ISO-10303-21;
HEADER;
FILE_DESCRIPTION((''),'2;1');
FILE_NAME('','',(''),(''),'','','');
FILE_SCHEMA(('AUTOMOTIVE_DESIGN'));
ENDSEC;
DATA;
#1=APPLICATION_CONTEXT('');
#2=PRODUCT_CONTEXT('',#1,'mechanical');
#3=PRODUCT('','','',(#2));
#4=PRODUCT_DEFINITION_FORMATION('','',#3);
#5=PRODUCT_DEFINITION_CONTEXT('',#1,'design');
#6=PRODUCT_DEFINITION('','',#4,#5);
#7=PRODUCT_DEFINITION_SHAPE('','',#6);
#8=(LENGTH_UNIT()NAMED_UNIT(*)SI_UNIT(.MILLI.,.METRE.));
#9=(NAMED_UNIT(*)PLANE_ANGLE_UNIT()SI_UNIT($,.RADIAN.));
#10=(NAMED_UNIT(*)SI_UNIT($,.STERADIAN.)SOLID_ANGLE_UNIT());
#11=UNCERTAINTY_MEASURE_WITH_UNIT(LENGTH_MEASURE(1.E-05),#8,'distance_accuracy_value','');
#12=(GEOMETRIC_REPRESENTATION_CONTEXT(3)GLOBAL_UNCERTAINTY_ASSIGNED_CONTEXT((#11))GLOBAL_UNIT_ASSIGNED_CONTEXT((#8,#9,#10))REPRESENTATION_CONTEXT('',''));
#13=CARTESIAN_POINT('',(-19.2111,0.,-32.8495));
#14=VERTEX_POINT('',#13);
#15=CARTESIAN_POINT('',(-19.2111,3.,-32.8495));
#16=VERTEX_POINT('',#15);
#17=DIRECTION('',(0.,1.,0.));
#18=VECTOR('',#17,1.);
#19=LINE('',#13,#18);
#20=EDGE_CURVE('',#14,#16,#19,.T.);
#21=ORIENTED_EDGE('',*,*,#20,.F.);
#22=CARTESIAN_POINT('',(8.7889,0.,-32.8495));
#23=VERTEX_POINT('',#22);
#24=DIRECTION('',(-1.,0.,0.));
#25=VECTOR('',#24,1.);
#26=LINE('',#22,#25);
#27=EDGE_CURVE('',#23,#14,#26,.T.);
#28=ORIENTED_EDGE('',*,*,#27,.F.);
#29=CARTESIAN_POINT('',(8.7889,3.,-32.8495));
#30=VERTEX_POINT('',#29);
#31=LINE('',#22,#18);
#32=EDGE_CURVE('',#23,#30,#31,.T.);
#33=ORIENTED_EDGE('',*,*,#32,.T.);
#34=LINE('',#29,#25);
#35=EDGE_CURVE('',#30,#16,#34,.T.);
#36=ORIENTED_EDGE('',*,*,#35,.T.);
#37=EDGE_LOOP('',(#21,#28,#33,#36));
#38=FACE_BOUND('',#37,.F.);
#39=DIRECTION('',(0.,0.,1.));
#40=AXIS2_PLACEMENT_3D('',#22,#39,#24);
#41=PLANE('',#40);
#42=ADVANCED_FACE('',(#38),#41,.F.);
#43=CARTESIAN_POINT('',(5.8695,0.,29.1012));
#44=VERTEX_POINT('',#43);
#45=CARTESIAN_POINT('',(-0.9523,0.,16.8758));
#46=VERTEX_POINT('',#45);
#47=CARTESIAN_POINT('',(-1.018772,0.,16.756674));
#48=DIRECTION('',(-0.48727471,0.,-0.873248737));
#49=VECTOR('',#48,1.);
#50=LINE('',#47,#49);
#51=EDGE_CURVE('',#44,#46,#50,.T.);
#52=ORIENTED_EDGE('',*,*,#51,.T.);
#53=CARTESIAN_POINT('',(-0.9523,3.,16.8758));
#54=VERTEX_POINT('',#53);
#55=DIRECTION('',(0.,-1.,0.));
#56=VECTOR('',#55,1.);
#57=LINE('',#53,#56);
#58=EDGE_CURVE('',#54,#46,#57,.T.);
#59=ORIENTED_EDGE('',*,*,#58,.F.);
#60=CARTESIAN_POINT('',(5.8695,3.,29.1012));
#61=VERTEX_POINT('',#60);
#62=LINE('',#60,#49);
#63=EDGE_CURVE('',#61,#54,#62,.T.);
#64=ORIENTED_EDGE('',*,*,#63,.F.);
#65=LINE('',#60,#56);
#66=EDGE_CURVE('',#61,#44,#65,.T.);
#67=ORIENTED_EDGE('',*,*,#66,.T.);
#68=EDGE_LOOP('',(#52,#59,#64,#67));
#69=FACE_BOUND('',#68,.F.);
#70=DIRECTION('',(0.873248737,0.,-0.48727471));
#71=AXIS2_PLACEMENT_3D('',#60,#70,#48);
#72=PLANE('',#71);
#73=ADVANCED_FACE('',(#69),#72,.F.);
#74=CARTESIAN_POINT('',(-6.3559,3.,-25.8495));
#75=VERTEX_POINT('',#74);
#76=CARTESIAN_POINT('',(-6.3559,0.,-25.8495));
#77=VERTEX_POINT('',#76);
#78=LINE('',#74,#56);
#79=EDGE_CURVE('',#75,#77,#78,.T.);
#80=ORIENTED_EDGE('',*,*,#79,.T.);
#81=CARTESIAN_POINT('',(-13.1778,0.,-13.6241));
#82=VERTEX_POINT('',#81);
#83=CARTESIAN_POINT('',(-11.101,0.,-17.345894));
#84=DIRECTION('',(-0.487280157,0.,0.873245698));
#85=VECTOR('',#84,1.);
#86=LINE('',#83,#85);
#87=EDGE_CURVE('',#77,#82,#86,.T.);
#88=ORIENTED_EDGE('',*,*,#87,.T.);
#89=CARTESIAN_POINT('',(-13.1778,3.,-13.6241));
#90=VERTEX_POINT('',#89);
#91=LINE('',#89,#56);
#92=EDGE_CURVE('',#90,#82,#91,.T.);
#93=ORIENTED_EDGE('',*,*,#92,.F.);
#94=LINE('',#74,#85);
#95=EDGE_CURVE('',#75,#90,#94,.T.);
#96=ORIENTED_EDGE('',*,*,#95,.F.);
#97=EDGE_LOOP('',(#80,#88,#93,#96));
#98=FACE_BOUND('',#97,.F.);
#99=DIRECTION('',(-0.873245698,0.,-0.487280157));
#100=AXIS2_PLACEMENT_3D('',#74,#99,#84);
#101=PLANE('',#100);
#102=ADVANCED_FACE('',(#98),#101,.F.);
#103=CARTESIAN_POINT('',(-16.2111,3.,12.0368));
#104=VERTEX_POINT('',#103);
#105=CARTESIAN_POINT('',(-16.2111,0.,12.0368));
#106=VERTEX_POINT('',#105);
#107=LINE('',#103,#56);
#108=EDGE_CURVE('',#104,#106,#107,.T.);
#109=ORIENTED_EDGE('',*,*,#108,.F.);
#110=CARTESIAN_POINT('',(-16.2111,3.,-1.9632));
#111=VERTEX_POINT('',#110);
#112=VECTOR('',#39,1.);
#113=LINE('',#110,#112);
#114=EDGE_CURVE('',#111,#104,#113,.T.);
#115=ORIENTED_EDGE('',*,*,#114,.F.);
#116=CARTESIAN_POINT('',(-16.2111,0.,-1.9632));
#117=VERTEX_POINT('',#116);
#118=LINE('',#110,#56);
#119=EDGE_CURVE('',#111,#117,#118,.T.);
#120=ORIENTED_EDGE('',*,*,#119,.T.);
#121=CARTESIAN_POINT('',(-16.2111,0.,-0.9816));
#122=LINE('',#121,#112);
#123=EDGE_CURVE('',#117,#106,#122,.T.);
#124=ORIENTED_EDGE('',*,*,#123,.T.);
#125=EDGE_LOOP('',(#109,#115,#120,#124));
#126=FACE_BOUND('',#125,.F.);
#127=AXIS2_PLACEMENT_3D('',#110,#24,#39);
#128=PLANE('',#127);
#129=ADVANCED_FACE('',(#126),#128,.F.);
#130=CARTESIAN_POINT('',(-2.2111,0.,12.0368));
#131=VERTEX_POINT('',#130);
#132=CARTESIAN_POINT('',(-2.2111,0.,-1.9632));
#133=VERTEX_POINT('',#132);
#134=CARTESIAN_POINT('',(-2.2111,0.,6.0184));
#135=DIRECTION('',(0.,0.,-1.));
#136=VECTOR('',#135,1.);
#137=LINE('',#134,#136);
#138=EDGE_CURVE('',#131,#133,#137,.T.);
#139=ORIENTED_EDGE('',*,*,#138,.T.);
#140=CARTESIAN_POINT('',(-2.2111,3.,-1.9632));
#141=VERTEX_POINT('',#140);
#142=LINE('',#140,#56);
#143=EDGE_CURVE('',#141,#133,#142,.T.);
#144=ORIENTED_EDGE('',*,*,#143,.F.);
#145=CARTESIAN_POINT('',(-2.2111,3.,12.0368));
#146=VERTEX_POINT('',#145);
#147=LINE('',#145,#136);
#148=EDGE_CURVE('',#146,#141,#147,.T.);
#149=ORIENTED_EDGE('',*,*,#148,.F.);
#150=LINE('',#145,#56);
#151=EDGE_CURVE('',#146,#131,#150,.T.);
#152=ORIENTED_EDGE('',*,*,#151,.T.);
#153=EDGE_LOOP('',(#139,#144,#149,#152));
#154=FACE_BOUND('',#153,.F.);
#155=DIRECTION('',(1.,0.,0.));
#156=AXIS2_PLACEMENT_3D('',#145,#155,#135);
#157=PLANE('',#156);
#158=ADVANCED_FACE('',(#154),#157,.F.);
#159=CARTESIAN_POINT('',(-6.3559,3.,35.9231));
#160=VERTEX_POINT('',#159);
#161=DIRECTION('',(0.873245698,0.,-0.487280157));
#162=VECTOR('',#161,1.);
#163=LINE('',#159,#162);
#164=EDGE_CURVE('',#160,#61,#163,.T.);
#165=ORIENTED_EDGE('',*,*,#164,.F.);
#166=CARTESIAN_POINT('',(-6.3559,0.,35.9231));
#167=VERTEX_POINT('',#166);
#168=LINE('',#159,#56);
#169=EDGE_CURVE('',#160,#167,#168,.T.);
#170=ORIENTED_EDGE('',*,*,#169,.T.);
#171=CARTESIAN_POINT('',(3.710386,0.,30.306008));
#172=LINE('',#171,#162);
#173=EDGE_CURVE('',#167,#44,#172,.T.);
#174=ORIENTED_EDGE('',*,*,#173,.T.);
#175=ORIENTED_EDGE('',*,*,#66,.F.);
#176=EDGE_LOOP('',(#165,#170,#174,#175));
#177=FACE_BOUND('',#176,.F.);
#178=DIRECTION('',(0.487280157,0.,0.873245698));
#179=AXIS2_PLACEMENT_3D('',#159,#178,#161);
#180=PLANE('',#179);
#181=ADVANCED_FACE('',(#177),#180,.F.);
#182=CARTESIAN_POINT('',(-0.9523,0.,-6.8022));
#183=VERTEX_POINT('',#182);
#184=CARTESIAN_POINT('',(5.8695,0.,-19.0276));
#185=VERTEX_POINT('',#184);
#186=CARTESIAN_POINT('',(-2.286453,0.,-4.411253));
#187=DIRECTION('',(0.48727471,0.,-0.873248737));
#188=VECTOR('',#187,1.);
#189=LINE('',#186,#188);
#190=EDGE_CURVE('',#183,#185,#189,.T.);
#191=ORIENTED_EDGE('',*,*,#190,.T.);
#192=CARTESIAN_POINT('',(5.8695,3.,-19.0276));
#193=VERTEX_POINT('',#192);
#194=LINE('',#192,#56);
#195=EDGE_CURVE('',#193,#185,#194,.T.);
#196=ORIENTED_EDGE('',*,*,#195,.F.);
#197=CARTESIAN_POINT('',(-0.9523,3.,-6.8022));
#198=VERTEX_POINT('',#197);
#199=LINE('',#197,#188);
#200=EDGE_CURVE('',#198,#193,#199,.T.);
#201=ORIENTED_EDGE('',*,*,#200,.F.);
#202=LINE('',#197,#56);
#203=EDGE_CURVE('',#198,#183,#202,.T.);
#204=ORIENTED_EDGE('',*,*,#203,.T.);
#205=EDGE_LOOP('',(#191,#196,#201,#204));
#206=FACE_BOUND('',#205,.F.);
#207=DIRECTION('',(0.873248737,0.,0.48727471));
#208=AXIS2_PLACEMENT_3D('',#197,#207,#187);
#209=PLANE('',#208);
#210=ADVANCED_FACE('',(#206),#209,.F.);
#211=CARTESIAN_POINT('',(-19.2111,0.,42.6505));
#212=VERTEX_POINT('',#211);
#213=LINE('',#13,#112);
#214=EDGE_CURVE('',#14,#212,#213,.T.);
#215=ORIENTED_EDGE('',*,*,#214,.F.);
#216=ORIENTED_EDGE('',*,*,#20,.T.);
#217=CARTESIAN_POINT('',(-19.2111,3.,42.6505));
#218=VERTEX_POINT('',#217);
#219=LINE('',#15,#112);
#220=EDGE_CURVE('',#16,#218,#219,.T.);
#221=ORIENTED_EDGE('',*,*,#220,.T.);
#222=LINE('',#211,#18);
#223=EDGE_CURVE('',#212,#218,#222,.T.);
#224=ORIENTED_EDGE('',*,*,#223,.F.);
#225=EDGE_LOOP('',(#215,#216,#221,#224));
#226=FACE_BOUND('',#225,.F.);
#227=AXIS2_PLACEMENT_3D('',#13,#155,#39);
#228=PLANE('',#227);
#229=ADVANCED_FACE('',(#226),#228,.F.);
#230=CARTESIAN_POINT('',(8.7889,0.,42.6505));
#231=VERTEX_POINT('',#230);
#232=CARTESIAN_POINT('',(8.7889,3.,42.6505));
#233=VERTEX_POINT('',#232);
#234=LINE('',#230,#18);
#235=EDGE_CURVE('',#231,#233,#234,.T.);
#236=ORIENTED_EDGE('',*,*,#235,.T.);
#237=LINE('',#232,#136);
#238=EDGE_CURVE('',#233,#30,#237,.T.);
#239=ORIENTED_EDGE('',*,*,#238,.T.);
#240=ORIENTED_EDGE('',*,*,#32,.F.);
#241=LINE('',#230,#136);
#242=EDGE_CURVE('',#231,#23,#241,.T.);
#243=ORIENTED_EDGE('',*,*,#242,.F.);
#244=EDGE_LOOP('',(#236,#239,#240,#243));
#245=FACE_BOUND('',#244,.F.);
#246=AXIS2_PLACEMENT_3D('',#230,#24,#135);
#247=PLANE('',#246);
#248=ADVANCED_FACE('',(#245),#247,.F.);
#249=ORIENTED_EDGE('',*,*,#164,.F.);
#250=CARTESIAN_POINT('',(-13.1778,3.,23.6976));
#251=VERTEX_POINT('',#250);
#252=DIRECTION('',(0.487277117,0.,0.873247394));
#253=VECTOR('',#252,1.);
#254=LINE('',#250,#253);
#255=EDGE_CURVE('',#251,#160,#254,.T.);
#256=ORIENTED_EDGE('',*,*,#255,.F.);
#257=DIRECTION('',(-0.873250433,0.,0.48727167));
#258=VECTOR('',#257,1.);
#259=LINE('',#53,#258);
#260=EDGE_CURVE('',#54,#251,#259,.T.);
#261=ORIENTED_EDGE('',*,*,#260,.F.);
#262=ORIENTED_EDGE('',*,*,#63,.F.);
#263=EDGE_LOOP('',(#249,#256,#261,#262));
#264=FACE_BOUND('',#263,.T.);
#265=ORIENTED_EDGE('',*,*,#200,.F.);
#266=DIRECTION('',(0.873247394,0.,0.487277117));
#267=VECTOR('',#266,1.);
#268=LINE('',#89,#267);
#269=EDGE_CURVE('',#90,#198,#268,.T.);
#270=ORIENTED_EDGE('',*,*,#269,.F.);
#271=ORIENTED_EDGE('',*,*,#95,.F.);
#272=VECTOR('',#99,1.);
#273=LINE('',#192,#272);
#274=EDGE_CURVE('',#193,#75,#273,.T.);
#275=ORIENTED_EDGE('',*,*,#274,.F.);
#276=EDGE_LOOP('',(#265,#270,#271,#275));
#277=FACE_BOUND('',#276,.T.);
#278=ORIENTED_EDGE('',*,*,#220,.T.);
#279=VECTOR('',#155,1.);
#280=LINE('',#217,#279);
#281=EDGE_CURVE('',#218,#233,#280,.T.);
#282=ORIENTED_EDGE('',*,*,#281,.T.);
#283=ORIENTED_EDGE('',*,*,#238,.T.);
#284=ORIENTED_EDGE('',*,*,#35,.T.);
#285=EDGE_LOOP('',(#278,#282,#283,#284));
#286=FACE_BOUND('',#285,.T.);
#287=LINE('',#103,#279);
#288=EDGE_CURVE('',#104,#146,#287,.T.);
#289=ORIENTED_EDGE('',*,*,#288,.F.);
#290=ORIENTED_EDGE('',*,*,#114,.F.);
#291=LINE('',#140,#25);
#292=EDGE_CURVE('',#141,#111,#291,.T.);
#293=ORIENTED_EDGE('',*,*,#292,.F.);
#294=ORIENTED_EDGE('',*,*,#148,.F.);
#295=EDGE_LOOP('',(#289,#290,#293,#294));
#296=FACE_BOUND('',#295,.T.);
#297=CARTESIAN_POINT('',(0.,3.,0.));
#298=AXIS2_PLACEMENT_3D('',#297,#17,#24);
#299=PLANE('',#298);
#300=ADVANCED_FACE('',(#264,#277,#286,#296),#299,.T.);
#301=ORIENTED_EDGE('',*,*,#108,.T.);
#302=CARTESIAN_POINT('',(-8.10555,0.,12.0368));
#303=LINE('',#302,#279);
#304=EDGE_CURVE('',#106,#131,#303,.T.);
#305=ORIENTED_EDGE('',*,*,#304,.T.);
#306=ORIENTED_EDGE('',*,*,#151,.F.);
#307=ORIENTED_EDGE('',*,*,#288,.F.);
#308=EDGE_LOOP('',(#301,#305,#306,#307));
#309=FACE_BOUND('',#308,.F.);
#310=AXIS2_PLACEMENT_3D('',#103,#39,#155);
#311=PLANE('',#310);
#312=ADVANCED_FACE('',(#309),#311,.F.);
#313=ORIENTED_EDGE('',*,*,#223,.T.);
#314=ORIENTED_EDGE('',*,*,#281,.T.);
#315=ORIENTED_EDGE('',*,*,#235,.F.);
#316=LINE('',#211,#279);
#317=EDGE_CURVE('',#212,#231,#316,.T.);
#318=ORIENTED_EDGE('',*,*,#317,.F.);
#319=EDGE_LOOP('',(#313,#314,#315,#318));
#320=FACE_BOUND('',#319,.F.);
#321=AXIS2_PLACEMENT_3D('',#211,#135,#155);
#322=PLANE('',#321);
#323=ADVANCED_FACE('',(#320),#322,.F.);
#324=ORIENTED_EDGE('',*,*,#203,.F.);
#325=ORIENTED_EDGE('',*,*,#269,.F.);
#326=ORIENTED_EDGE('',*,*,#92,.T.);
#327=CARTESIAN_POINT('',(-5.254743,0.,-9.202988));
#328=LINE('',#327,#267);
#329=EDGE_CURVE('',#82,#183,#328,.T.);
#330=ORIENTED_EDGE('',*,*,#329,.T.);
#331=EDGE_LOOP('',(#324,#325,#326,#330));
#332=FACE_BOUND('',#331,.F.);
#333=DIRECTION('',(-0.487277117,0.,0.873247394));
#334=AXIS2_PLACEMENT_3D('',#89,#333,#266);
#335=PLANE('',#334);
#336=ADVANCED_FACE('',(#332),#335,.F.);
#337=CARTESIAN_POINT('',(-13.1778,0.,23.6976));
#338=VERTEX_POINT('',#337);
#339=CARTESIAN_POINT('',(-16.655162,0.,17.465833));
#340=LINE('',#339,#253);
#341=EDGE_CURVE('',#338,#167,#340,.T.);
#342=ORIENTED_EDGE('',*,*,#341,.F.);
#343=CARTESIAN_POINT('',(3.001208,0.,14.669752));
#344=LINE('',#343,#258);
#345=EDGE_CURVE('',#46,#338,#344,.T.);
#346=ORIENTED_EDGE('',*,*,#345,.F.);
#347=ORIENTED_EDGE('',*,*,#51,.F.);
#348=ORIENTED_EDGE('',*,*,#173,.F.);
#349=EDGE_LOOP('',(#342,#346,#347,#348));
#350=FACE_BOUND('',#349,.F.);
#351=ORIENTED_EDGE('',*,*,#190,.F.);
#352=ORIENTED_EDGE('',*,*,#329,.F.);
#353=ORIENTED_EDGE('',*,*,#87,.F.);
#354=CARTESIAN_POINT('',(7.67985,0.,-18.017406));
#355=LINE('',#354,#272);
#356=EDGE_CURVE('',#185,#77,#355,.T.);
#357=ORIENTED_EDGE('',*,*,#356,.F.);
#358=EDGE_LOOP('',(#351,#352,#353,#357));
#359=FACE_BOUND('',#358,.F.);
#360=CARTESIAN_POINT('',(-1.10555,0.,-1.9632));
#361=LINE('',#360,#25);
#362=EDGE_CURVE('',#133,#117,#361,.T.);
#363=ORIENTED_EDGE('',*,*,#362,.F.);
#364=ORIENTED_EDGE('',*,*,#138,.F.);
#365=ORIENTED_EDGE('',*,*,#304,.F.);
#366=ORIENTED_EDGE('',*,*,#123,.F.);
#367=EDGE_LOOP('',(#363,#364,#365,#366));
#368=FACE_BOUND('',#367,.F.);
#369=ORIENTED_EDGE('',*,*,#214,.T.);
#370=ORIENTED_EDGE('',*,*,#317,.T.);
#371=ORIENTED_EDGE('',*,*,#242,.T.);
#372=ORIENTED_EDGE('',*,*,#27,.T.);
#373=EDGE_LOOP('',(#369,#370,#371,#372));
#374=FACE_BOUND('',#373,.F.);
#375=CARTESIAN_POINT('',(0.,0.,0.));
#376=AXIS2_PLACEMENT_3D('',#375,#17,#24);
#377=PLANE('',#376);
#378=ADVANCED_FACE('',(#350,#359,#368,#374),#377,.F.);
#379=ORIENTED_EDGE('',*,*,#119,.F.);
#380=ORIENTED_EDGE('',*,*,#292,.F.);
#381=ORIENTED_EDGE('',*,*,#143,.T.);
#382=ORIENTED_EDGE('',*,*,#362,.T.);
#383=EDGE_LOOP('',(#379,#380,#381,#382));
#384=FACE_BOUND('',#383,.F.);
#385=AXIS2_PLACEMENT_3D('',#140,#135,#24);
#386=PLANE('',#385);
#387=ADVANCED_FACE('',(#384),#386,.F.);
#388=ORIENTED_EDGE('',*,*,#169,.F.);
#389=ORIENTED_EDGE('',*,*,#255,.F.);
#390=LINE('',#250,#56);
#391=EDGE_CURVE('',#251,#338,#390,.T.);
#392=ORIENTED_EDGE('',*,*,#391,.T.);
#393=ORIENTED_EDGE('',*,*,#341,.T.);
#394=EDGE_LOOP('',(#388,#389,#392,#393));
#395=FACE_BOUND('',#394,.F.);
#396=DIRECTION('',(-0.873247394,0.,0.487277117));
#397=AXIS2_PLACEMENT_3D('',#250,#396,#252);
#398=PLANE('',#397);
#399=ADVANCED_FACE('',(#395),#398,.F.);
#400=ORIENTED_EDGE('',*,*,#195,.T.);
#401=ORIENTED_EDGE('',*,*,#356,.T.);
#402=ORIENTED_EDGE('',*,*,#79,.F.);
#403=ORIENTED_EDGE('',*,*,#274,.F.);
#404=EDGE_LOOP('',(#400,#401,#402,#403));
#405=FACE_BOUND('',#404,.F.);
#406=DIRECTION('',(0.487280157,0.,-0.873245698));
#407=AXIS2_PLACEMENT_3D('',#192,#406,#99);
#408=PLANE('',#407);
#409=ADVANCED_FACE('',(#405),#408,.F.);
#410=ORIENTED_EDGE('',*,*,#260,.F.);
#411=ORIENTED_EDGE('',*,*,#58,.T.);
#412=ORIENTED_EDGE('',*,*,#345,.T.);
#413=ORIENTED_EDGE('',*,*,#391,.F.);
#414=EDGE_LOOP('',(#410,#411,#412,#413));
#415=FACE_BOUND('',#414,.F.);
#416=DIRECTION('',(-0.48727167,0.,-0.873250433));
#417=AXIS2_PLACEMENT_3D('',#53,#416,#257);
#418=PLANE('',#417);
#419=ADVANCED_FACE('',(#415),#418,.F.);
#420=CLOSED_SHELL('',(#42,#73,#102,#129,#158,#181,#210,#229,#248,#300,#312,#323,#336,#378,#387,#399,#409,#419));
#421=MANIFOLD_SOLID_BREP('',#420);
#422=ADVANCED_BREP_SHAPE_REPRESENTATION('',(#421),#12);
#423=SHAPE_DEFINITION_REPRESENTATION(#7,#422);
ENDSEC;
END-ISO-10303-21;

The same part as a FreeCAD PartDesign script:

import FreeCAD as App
import Part
import Sketcher
from FreeCAD import Vector

doc = App.newDocument("Part")
body = doc.addObject("PartDesign::Body", "Body")

# Sketch on XZ plane
sketch1 = body.newObject("Sketcher::SketchObject", "Sketch")
sketch1.AttachmentSupport = (doc.getObject("XZ_Plane"), [""])
sketch1.MapMode = "FlatFace"
sketch1.addGeometry([
    Part.LineSegment(Vector(-19.2111, -32.8495, 0), Vector(-19.2111, 42.6505, 0)),
    Part.LineSegment(Vector(-19.2111, 42.6505, 0), Vector(8.7889, 42.6505, 0)),
    Part.LineSegment(Vector(8.7889, 42.6505, 0), Vector(8.7889, -32.8495, 0)),
    Part.LineSegment(Vector(8.7889, -32.8495, 0), Vector(-19.2111, -32.8495, 0)),
], False)
sketch1.addConstraint([
    Sketcher.Constraint("Coincident", 0, 2, 1, 1),
    Sketcher.Constraint("Coincident", 1, 2, 2, 1),
    Sketcher.Constraint("Coincident", 2, 2, 3, 1),
    Sketcher.Constraint("Coincident", 3, 2, 0, 1),
    Sketcher.Constraint("Vertical", 0),
    Sketcher.Constraint("Horizontal", 1),
    Sketcher.Constraint("Vertical", 2),
    Sketcher.Constraint("Horizontal", 3),
    Sketcher.Constraint("DistanceX", 1, 1, 1, 2, 28.0),
    Sketcher.Constraint("DistanceY", 0, 1, 0, 2, 75.5),
    Sketcher.Constraint("DistanceX", 0, 2, -1, 1, 19.211),
    Sketcher.Constraint("DistanceY", -1, 1, 0, 2, 42.6505),
])
pad1 = body.newObject("PartDesign::Pad", "Pad")
pad1.Profile = sketch1
pad1.Length = 3
pad1.Reversed = True

# Sketch on XZ plane
sketch2 = body.newObject("Sketcher::SketchObject", "Sketch001")
sketch2.AttachmentSupport = (doc.getObject("XZ_Plane"), [""])
sketch2.MapMode = "FlatFace"
sketch2.AttachmentOffset = App.Placement(Vector(0, 0, -3), App.Rotation())
sketch2.addGeometry([
    Part.LineSegment(Vector(-16.2111, -1.9632, 0), Vector(-16.2111, 12.0368, 0)),  # 0
    Part.LineSegment(Vector(-16.2111, 12.0368, 0), Vector(-2.2111, 12.0368, 0)),  # 1
    Part.LineSegment(Vector(-2.2111, 12.0368, 0), Vector(-2.2111, -1.9632, 0)),  # 2
    Part.LineSegment(Vector(-2.2111, -1.9632, 0), Vector(-16.2111, -1.9632, 0)),  # 3
    Part.LineSegment(Vector(-13.1778, 23.6976, 0), Vector(-6.3559, 35.9231, 0)),  # 4
    Part.LineSegment(Vector(-6.3559, 35.9231, 0), Vector(5.8695, 29.1012, 0)),  # 5
    Part.LineSegment(Vector(5.8695, 29.1012, 0), Vector(-0.9523, 16.8758, 0)),  # 6
    Part.LineSegment(Vector(-0.9523, 16.8758, 0), Vector(-13.1778, 23.6976, 0)),  # 7
    Part.LineSegment(Vector(-13.1778, -13.6241, 0), Vector(-0.9523, -6.8022, 0)),  # 8
    Part.LineSegment(Vector(-0.9523, -6.8022, 0), Vector(5.8695, -19.0276, 0)),  # 9
    Part.LineSegment(Vector(5.8695, -19.0276, 0), Vector(-6.3559, -25.8495, 0)),  # 10
    Part.LineSegment(Vector(-6.3559, -25.8495, 0), Vector(-13.1778, -13.6241, 0)),  # 11
], False)
sketch2.addConstraint([
    Sketcher.Constraint("Coincident", 0, 2, 1, 1),
    Sketcher.Constraint("Coincident", 1, 2, 2, 1),
    Sketcher.Constraint("Coincident", 2, 2, 3, 1),
    Sketcher.Constraint("Coincident", 3, 2, 0, 1),
    Sketcher.Constraint("Coincident", 4, 2, 5, 1),
    Sketcher.Constraint("Coincident", 5, 2, 6, 1),
    Sketcher.Constraint("Coincident", 6, 2, 7, 1),
    Sketcher.Constraint("Coincident", 7, 2, 4, 1),
    Sketcher.Constraint("Coincident", 8, 2, 9, 1),
    Sketcher.Constraint("Coincident", 9, 2, 10, 1),
    Sketcher.Constraint("Coincident", 10, 2, 11, 1),
    Sketcher.Constraint("Coincident", 11, 2, 8, 1),
    Sketcher.Constraint("Vertical", 0),
    Sketcher.Constraint("Horizontal", 1),
    Sketcher.Constraint("Vertical", 2),
    Sketcher.Constraint("Horizontal", 3),
    Sketcher.Constraint("Perpendicular", 4, 5),
    Sketcher.Constraint("Perpendicular", 5, 6),
    Sketcher.Constraint("Perpendicular", 6, 7),
    Sketcher.Constraint("Perpendicular", 8, 9),
    Sketcher.Constraint("Perpendicular", 9, 10),
    Sketcher.Constraint("Perpendicular", 10, 11),
    Sketcher.Constraint("Vertical", 6, 2, 8, 2),
    Sketcher.Constraint("Vertical", 5, 2, 9, 2),
    Sketcher.Constraint("Vertical", 4, 2, 10, 2),
    Sketcher.Constraint("Equal", 3, 0),
    Sketcher.Constraint("Equal", 4, 5),
    Sketcher.Constraint("Equal", 7, 8),
    Sketcher.Constraint("DistanceX", 1, 1, 1, 2, 14.0),
    Sketcher.Constraint("Distance", 4, 14.0),
    Sketcher.Constraint("DistanceX", 0, 2, -1, 1, 16.211),
    Sketcher.Constraint("DistanceX", 4, 2, -1, 1, 6.356),
    Sketcher.Constraint("DistanceY", -1, 1, 4, 2, 35.923),
    Sketcher.Constraint("DistanceY", 11, 2, -1, 1, 13.624),
    Sketcher.Constraint("DistanceY", 5, 2, 4, 2, 6.822),
    Sketcher.Constraint("DistanceY", 1, 2, 6, 2, 4.839),
])
pocket1 = body.newObject("PartDesign::Pocket", "Pocket")
pocket1.Profile = sketch2
pocket1.Type = "ThroughAll"
pocket1.Reversed = True

doc.recompute()
